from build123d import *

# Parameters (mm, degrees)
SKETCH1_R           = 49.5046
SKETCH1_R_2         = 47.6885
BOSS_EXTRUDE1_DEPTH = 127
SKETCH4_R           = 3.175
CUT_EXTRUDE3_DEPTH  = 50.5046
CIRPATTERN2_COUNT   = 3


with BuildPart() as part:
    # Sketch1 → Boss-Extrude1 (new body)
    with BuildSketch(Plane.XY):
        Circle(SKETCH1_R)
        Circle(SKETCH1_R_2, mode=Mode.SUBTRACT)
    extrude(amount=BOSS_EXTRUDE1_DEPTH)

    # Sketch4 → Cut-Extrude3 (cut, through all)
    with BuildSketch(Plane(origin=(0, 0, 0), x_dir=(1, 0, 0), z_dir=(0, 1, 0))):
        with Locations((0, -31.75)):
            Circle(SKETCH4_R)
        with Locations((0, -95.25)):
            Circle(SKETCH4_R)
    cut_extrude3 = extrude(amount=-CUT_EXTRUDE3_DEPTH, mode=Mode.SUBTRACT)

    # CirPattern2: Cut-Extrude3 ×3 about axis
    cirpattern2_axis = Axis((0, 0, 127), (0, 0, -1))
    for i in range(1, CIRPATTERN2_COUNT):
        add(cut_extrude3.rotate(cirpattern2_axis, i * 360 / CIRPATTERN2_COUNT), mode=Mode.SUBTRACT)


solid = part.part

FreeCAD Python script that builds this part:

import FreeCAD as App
import Part
import Sketcher
from FreeCAD import Vector
Q = App.Units.Quantity

doc = App.newDocument("Part")
params = doc.addObject("Spreadsheet::Sheet", "Params")
for row, (alias, value) in enumerate([
    ("sketch1_diameter", "3.898 in"),
    ("sketch1_diameter2", "3.755 in"),
    ("pad1_length", "5 in"),
    ("sketch2_diameter", "0.25 in"),
], start=1):
    params.set(f"A{row}", alias)
    params.set(f"B{row}", "=" + value)
    params.setAlias(f"B{row}", alias)

body = doc.addObject("PartDesign::Body", "Body")

# Sketch on XY plane
sketch1 = doc.addObject("Sketcher::SketchObject", "Sketch")
body.addObject(sketch1)
sketch1.AttachmentSupport = (doc.XY_Plane, [""])
sketch1.MapMode = "FlatFace"
sketch1.addGeometry([
    Part.Circle(Vector(0, 0, 0), Vector(0, 0, 1), 50),
    Part.Circle(Vector(0, 0, 0), Vector(0, 0, 1), 48),
], False)
sketch1.addConstraint([
    Sketcher.Constraint("Coincident", 0, 3, -1, 1),
    Sketcher.Constraint("Coincident", 1, 3, -1, 1),
    Sketcher.Constraint("Diameter", 0, Q("3.898 in")),
    Sketcher.Constraint("Diameter", 1, Q("3.755 in")),
])
sketch1.setExpression("Constraints[2]", "Params.sketch1_diameter")
sketch1.setExpression("Constraints[3]", "Params.sketch1_diameter2")
pad1 = doc.addObject("PartDesign::Pad", "Pad")
body.addObject(pad1)
pad1.Profile = sketch1
pad1.setExpression("Length", "Params.pad1_length")

# Sketch on XZ plane
sketch2 = doc.addObject("Sketcher::SketchObject", "Sketch001")
body.addObject(sketch2)
sketch2.AttachmentSupport = (doc.XZ_Plane, [""])
sketch2.MapMode = "FlatFace"
sketch2.addGeometry([
    Part.Circle(Vector(0, 31.8, 0), Vector(0, 0, 1), 3.2),
    Part.Circle(Vector(0, 95.2, 0), Vector(0, 0, 1), 3.2),
], False)
sketch2.addConstraint([
    Sketcher.Constraint("Equal", 0, 1),
    Sketcher.Constraint("PointOnObject", 0, 3, -2),
    Sketcher.Constraint("PointOnObject", 1, 3, -2),
    Sketcher.Constraint("Diameter", 0, Q("0.25 in")),
    Sketcher.Constraint("DistanceY", 0, 3, 1, 3, Q("2.5 in")),
    Sketcher.Constraint("DistanceY", -1, 1, 0, 3, Q("1.25 in")),
])
sketch2.setExpression("Constraints[3]", "Params.sketch2_diameter")
pocket1 = doc.addObject("PartDesign::Pocket", "Pocket")
body.addObject(pocket1)
pocket1.Profile = sketch2
pocket1.Type = "ThroughAll"
pocket1.Reversed = True
doc.recompute()

polarpattern = doc.addObject("PartDesign::PolarPattern", "PolarPattern")
body.addObject(polarpattern)
polarpattern.Originals = [pocket1]
polarpattern.Axis = (doc.Z_Axis, [""])
polarpattern.Angle = 360
polarpattern.Occurrences = 3
body.Tip = polarpattern

doc.recompute()
